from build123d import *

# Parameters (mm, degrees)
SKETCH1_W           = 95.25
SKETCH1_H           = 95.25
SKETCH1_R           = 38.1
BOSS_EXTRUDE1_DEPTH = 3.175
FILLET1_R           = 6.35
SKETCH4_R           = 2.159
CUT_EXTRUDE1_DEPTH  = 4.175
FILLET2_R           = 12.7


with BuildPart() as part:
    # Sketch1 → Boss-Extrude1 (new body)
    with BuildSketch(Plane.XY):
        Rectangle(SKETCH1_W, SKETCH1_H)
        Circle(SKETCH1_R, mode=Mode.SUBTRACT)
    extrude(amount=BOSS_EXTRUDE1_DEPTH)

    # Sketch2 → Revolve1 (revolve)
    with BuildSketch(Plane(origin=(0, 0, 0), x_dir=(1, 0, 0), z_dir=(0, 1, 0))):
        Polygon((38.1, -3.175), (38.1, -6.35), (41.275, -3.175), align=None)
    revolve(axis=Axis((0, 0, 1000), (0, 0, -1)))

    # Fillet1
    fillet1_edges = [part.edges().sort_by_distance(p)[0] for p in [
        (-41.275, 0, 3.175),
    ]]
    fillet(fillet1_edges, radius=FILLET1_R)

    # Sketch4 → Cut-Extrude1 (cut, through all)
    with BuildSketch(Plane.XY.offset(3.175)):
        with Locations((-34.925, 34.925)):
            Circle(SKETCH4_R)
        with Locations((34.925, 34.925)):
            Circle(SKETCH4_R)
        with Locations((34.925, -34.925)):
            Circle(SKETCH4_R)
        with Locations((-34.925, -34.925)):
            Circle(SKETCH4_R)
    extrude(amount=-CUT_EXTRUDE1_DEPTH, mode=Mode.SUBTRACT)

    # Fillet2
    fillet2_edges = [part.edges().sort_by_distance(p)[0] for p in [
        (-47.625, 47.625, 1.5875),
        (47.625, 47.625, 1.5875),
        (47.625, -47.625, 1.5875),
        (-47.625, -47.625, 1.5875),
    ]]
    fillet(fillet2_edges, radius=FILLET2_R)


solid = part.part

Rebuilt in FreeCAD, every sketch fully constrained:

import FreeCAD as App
import Part
import Sketcher

V = App.Vector
Q = App.Units.Quantity


def edges_at(feature, points):
    """Names of the edges that pass closest to the given points."""
    edges = feature.Shape.Edges
    near = lambda p: min(range(len(edges)), key=lambda i: edges[i].distToShape(Part.Vertex(*p))[0])
    return sorted({f"Edge{near(p) + 1}" for p in points})


def add_polygon(sketch, points):
    """Adds a closed chain of lines whose ends are joined by coincident constraints."""
    first, n = sketch.GeometryCount, len(points)
    for a, b in zip(points, points[1:] + points[:1]):
        sketch.addGeometry(Part.LineSegment(App.Vector(*a, 0), App.Vector(*b, 0)), False)
    for i in range(n):
        sketch.addConstraint(Sketcher.Constraint("Coincident", first + i, 2, first + (i + 1) % n, 1))

doc = App.newDocument("Part")
params = doc.addObject("Spreadsheet::Sheet", "Params")
for row, (alias, value) in enumerate([
    ("sketch1_diameter", "3 in"),
    ("sketch1_width", "3.75 in"),
    ("pad1_length", "0.125 in"),
    ("sketch2_width", "0.125 in"),
    ("revolution_angle", "360 deg"),
    ("fillet_radius", "0.25 in"),
    ("sketch3_diameter", "0.17 in"),
    ("fillet2_radius", "0.5 in"),
], start=1):
    params.set(f"A{row}", alias)
    params.set(f"B{row}", "=" + value)
    params.setAlias(f"B{row}", alias)

body = doc.addObject("PartDesign::Body", "Body")

sketch1 = doc.addObject("Sketcher::SketchObject", "Sketch")
body.addObject(sketch1)
sketch1.AttachmentSupport = (doc.XY_Plane, [""])
sketch1.MapMode = "FlatFace"
add_polygon(sketch1, [(-48, 48), (-48, -48), (48, -48), (48, 48)])
sketch1.addGeometry(Part.Circle(V(0, 0, 0), V(0, 0, 1), 38), False)
sketch1.addConstraint([
    Sketcher.Constraint("Vertical", 0),
    Sketcher.Constraint("Horizontal", 1),
    Sketcher.Constraint("Vertical", 2),
    Sketcher.Constraint("Horizontal", 3),
    Sketcher.Constraint("Coincident", 4, 3, -1, 1),
    Sketcher.Constraint("Symmetric", 0, 2, 2, 2, -1, 1),
    Sketcher.Constraint("Equal", 3, 0),
    Sketcher.Constraint("Diameter", 4, Q("3 in")),
    Sketcher.Constraint("DistanceX", 1, 1, 1, 2, Q("3.75 in")),
])
sketch1.setExpression("Constraints[11]", "Params.sketch1_diameter")
sketch1.setExpression("Constraints[12]", "Params.sketch1_width")
pad1 = doc.addObject("PartDesign::Pad", "Pad")
body.addObject(pad1)
pad1.Profile = sketch1
pad1.setExpression("Length", "Params.pad1_length")

sketch2 = doc.addObject("Sketcher::SketchObject", "Sketch001")
body.addObject(sketch2)
sketch2.AttachmentSupport = (doc.XZ_Plane, [""])
sketch2.MapMode = "FlatFace"
add_polygon(sketch2, [(38.1, 3.2), (38.1, 6.3), (41.3, 3.2)])
sketch2.addConstraint([
    Sketcher.Constraint("Vertical", 0),
    Sketcher.Constraint("Horizontal", 2),
    Sketcher.Constraint("Equal", 2, 0),
    Sketcher.Constraint("DistanceX", -1, 1, 0, 2, Q("1.5 in")),
    Sketcher.Constraint("DistanceX", 2, 2, 2, 1, Q("0.125 in")),
    Sketcher.Constraint("DistanceY", -1, 1, 0, 2, Q("0.25 in")),
])
sketch2.setExpression("Constraints[7]", "Params.sketch2_width")
revolution = doc.addObject("PartDesign::Revolution", "Revolution")
body.addObject(revolution)
revolution.Profile = sketch2
revolution.ReferenceAxis = (sketch2, ["V_Axis"])
revolution.setExpression("Angle", "Params.revolution_angle")
doc.recompute()

fillet = doc.addObject("PartDesign::Fillet", "Fillet")
body.addObject(fillet)
fillet.Base = (revolution, edges_at(revolution, [(-41.275, 0, 3.175)]))
fillet.setExpression("Radius", "Params.fillet_radius")

sketch3 = doc.addObject("Sketcher::SketchObject", "Sketch002")
body.addObject(sketch3)
sketch3.AttachmentSupport = (doc.XY_Plane, [""])
sketch3.MapMode = "FlatFace"
sketch3.AttachmentOffset = App.Placement(V(0, 0, 0.125 * 25.4), App.Rotation())
sketch3.addGeometry([
    Part.Circle(V(-34.9, 34.9, 0), V(0, 0, 1), 2.2),
    Part.Circle(V(34.9, 34.9, 0), V(0, 0, 1), 2.2),
    Part.Circle(V(34.9, -34.9, 0), V(0, 0, 1), 2.2),
    Part.Circle(V(-34.9, -34.9, 0), V(0, 0, 1), 2.2),
], False)
sketch3.addConstraint([
    Sketcher.Constraint("Equal", 0, 1),
    Sketcher.Constraint("Equal", 1, 2),
    Sketcher.Constraint("Equal", 2, 3),
    Sketcher.Constraint("Symmetric", 0, 3, 2, 3, -1, 1),
    Sketcher.Constraint("Symmetric", 1, 3, 3, 3, -1, 1),
    Sketcher.Constraint("Symmetric", 0, 3, 1, 3, -2),
    Sketcher.Constraint("Diameter", 0, Q("0.17 in")),
    Sketcher.Constraint("DistanceX", 0, 3, 1, 3, Q("2.75 in")),
    Sketcher.Constraint("DistanceY", 2, 3, 1, 3, Q("2.75 in")),
])
sketch3.setExpression("Constraints[6]", "Params.sketch3_diameter")
pocket1 = doc.addObject("PartDesign::Pocket", "Pocket")
body.addObject(pocket1)
pocket1.Profile = sketch3
pocket1.Type = "ThroughAll"
doc.recompute()

fillet2 = doc.addObject("PartDesign::Fillet", "Fillet001")
body.addObject(fillet2)
fillet2.Base = (pocket1, edges_at(pocket1, [
    (-47.625, 47.625, 1.587),
    (47.625, 47.625, 1.587),
    (47.625, -47.625, 1.587),
    (-47.625, -47.625, 1.587),
]))
fillet2.setExpression("Radius", "Params.fillet2_radius")

doc.recompute()
